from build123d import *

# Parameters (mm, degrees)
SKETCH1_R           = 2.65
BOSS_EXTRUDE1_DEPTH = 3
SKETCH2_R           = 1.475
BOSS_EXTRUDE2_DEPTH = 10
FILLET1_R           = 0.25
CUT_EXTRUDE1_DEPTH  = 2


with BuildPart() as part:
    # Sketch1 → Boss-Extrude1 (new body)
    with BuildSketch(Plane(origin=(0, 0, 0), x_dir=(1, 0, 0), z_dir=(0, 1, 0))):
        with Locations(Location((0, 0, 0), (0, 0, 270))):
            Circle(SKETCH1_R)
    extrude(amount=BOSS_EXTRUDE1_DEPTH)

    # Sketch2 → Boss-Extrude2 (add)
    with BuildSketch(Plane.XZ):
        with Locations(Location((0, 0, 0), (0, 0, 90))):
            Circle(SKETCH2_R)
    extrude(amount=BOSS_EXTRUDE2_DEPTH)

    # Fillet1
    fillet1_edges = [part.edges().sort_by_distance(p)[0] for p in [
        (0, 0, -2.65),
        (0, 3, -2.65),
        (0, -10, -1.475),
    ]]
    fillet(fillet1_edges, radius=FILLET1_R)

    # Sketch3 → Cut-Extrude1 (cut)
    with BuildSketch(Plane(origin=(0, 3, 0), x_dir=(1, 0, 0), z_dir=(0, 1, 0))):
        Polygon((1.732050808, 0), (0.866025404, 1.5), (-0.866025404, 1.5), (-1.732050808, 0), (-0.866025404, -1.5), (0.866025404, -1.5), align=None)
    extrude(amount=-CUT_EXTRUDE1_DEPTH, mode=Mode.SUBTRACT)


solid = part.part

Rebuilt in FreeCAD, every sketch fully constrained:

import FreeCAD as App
import Part
import Sketcher
from FreeCAD import Vector
Q = App.Units.Quantity


def edges_at(feature, points):
    """Names of the edges that pass closest to the given points."""
    edges = feature.Shape.Edges
    near = lambda p: min(range(len(edges)), key=lambda i: edges[i].distToShape(Part.Vertex(*p))[0])
    return sorted({f"Edge{near(p) + 1}" for p in points})


def add_polygon(sketch, points):
    """Adds a closed chain of lines whose ends are joined by coincident constraints."""
    first, n = sketch.GeometryCount, len(points)
    for a, b in zip(points, points[1:] + points[:1]):
        sketch.addGeometry(Part.LineSegment(App.Vector(*a, 0), App.Vector(*b, 0)), False)
    for i in range(n):
        sketch.addConstraint(Sketcher.Constraint("Coincident", first + i, 2, first + (i + 1) % n, 1))

doc = App.newDocument("Part")
body = doc.addObject("PartDesign::Body", "Body")

# Sketch on XZ plane
sketch1 = body.newObject("Sketcher::SketchObject", "Sketch")
sketch1.AttachmentSupport = (doc.getObject("XZ_Plane"), [""])
sketch1.MapMode = "FlatFace"
sketch1.addGeometry(Part.Circle(Vector(0, 0, 0), Vector(0, 0, 1), 2.6), False)
sketch1.addConstraint(Sketcher.Constraint("Coincident", 0, 3, -1, 1))
sketch1.addConstraint(Sketcher.Constraint("Diameter", 0, 5.3))
pad1 = body.newObject("PartDesign::Pad", "Pad")
pad1.Profile = sketch1
pad1.Length = 3
pad1.Reversed = True

# Sketch on XZ plane
sketch2 = body.newObject("Sketcher::SketchObject", "Sketch001")
sketch2.AttachmentSupport = (doc.getObject("XZ_Plane"), [""])
sketch2.MapMode = "FlatFace"
sketch2.addGeometry(Part.Circle(Vector(0, 0, 0), Vector(0, 0, 1), 1.5), False)
sketch2.addConstraint(Sketcher.Constraint("Coincident", 0, 3, -1, 1))
sketch2.addConstraint(Sketcher.Constraint("Diameter", 0, 2.95))
pad2 = body.newObject("PartDesign::Pad", "Pad001")
pad2.Profile = sketch2
pad2.Length = 10
doc.recompute()

fillet = body.newObject("PartDesign::Fillet", "Fillet")
fillet.Base = (pad2, edges_at(pad2, [(0, 0, -2.65), (0, 3, -2.65), (0, -10, -1.475)]))
fillet.Radius = 0.25

# Sketch on XZ plane
sketch3 = body.newObject("Sketcher::SketchObject", "Sketch002")
sketch3.AttachmentSupport = (doc.getObject("XZ_Plane"), [""])
sketch3.MapMode = "FlatFace"
sketch3.AttachmentOffset = App.Placement(Vector(0, 0, -3), App.Rotation())
add_polygon(sketch3, [(1.7, 0), (0.9, -1.5), (-0.9, -1.5), (-1.7, 0), (-0.9, 1.5), (0.9, 1.5)])  # lines 0-5
sketch3.addConstraint(Sketcher.Constraint("Horizontal", 1))
sketch3.addConstraint(Sketcher.Constraint("Horizontal", 4))
sketch3.addConstraint(Sketcher.Constraint("Symmetric", 0, 2, 3, 2, -1, 1))
sketch3.addConstraint(Sketcher.Constraint("Symmetric", 2, 2, 5, 2, -1, 1))
sketch3.addConstraint(Sketcher.Constraint("PointOnObject", 2, 2, -1))
sketch3.addConstraint(Sketcher.Constraint("Parallel", 2, 5))
sketch3.addConstraint(Sketcher.Constraint("Vertical", 1, 2, 3, 2))
sketch3.addConstraint(Sketcher.Constraint("Angle", 0, Q("-120 deg")))
sketch3.addConstraint(Sketcher.Constraint("DistanceY", 1, 2, 3, 2, 3.0))
sketch3.addConstraint(Sketcher.Constraint("DistanceX", 1, 2, 1, 1, 1.732051))
pocket1 = body.newObject("PartDesign::Pocket", "Pocket")
pocket1.Profile = sketch3
pocket1.Length = 2
pocket1.Reversed = True

doc.recompute()
